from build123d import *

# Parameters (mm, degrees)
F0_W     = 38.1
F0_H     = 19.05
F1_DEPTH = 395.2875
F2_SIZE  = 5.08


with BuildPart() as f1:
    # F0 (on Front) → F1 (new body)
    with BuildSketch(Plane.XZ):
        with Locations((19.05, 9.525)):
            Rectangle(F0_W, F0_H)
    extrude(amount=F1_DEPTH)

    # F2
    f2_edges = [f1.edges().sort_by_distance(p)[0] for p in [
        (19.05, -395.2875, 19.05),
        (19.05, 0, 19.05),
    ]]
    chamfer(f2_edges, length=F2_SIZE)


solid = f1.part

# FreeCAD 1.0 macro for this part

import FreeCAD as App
import Part
import Sketcher
Q = App.Units.Quantity


def edges_at(feature, points):
    """Names of the edges that pass closest to the given points."""
    edges = feature.Shape.Edges
    near = lambda p: min(range(len(edges)), key=lambda i: edges[i].distToShape(Part.Vertex(*p))[0])
    return sorted({f"Edge{near(p) + 1}" for p in points})

doc = App.newDocument("Part")
body = doc.addObject("PartDesign::Body", "Body")

sketch1 = body.newObject("Sketcher::SketchObject", "Sketch")
sketch1.AttachmentSupport = (doc.getObject("XZ_Plane"), [""])
sketch1.MapMode = "FlatFace"
sketch1.addGeometry(Part.LineSegment(App.Vector(0, 19, 0), App.Vector(0, 0, 0)), False)
sketch1.addGeometry(Part.LineSegment(App.Vector(0, 0, 0), App.Vector(38, 0, 0)), False)
sketch1.addGeometry(Part.LineSegment(App.Vector(38, 0, 0), App.Vector(38, 19, 0)), False)
sketch1.addGeometry(Part.LineSegment(App.Vector(38, 19, 0), App.Vector(0, 19, 0)), False)
sketch1.addConstraint(Sketcher.Constraint("Coincident", 0, 2, 1, 1))
sketch1.addConstraint(Sketcher.Constraint("Coincident", 1, 2, 2, 1))
sketch1.addConstraint(Sketcher.Constraint("Coincident", 2, 2, 3, 1))
sketch1.addConstraint(Sketcher.Constraint("Coincident", 3, 2, 0, 1))
sketch1.addConstraint(Sketcher.Constraint("Vertical", 0))
sketch1.addConstraint(Sketcher.Constraint("Horizontal", 1))
sketch1.addConstraint(Sketcher.Constraint("Vertical", 2))
sketch1.addConstraint(Sketcher.Constraint("Horizontal", 3))
sketch1.addConstraint(Sketcher.Constraint("Coincident", 0, 2, -1, 1))
sketch1.addConstraint(Sketcher.Constraint("DistanceX", 1, 1, 1, 2, Q("1.5 in")))
sketch1.addConstraint(Sketcher.Constraint("DistanceY", 0, 2, 0, 1, Q("0.75 in")))
pad1 = body.newObject("PartDesign::Pad", "Pad")
pad1.Profile = sketch1
pad1.Length = Q("15.5625 in")
doc.recompute()

chamfer = body.newObject("PartDesign::Chamfer", "Chamfer")
chamfer.Base = (pad1, edges_at(pad1, [(19.05, -395.288, 19.05), (19.05, 0, 19.05)]))
chamfer.Size = Q("0.2 in")

doc.recompute()
